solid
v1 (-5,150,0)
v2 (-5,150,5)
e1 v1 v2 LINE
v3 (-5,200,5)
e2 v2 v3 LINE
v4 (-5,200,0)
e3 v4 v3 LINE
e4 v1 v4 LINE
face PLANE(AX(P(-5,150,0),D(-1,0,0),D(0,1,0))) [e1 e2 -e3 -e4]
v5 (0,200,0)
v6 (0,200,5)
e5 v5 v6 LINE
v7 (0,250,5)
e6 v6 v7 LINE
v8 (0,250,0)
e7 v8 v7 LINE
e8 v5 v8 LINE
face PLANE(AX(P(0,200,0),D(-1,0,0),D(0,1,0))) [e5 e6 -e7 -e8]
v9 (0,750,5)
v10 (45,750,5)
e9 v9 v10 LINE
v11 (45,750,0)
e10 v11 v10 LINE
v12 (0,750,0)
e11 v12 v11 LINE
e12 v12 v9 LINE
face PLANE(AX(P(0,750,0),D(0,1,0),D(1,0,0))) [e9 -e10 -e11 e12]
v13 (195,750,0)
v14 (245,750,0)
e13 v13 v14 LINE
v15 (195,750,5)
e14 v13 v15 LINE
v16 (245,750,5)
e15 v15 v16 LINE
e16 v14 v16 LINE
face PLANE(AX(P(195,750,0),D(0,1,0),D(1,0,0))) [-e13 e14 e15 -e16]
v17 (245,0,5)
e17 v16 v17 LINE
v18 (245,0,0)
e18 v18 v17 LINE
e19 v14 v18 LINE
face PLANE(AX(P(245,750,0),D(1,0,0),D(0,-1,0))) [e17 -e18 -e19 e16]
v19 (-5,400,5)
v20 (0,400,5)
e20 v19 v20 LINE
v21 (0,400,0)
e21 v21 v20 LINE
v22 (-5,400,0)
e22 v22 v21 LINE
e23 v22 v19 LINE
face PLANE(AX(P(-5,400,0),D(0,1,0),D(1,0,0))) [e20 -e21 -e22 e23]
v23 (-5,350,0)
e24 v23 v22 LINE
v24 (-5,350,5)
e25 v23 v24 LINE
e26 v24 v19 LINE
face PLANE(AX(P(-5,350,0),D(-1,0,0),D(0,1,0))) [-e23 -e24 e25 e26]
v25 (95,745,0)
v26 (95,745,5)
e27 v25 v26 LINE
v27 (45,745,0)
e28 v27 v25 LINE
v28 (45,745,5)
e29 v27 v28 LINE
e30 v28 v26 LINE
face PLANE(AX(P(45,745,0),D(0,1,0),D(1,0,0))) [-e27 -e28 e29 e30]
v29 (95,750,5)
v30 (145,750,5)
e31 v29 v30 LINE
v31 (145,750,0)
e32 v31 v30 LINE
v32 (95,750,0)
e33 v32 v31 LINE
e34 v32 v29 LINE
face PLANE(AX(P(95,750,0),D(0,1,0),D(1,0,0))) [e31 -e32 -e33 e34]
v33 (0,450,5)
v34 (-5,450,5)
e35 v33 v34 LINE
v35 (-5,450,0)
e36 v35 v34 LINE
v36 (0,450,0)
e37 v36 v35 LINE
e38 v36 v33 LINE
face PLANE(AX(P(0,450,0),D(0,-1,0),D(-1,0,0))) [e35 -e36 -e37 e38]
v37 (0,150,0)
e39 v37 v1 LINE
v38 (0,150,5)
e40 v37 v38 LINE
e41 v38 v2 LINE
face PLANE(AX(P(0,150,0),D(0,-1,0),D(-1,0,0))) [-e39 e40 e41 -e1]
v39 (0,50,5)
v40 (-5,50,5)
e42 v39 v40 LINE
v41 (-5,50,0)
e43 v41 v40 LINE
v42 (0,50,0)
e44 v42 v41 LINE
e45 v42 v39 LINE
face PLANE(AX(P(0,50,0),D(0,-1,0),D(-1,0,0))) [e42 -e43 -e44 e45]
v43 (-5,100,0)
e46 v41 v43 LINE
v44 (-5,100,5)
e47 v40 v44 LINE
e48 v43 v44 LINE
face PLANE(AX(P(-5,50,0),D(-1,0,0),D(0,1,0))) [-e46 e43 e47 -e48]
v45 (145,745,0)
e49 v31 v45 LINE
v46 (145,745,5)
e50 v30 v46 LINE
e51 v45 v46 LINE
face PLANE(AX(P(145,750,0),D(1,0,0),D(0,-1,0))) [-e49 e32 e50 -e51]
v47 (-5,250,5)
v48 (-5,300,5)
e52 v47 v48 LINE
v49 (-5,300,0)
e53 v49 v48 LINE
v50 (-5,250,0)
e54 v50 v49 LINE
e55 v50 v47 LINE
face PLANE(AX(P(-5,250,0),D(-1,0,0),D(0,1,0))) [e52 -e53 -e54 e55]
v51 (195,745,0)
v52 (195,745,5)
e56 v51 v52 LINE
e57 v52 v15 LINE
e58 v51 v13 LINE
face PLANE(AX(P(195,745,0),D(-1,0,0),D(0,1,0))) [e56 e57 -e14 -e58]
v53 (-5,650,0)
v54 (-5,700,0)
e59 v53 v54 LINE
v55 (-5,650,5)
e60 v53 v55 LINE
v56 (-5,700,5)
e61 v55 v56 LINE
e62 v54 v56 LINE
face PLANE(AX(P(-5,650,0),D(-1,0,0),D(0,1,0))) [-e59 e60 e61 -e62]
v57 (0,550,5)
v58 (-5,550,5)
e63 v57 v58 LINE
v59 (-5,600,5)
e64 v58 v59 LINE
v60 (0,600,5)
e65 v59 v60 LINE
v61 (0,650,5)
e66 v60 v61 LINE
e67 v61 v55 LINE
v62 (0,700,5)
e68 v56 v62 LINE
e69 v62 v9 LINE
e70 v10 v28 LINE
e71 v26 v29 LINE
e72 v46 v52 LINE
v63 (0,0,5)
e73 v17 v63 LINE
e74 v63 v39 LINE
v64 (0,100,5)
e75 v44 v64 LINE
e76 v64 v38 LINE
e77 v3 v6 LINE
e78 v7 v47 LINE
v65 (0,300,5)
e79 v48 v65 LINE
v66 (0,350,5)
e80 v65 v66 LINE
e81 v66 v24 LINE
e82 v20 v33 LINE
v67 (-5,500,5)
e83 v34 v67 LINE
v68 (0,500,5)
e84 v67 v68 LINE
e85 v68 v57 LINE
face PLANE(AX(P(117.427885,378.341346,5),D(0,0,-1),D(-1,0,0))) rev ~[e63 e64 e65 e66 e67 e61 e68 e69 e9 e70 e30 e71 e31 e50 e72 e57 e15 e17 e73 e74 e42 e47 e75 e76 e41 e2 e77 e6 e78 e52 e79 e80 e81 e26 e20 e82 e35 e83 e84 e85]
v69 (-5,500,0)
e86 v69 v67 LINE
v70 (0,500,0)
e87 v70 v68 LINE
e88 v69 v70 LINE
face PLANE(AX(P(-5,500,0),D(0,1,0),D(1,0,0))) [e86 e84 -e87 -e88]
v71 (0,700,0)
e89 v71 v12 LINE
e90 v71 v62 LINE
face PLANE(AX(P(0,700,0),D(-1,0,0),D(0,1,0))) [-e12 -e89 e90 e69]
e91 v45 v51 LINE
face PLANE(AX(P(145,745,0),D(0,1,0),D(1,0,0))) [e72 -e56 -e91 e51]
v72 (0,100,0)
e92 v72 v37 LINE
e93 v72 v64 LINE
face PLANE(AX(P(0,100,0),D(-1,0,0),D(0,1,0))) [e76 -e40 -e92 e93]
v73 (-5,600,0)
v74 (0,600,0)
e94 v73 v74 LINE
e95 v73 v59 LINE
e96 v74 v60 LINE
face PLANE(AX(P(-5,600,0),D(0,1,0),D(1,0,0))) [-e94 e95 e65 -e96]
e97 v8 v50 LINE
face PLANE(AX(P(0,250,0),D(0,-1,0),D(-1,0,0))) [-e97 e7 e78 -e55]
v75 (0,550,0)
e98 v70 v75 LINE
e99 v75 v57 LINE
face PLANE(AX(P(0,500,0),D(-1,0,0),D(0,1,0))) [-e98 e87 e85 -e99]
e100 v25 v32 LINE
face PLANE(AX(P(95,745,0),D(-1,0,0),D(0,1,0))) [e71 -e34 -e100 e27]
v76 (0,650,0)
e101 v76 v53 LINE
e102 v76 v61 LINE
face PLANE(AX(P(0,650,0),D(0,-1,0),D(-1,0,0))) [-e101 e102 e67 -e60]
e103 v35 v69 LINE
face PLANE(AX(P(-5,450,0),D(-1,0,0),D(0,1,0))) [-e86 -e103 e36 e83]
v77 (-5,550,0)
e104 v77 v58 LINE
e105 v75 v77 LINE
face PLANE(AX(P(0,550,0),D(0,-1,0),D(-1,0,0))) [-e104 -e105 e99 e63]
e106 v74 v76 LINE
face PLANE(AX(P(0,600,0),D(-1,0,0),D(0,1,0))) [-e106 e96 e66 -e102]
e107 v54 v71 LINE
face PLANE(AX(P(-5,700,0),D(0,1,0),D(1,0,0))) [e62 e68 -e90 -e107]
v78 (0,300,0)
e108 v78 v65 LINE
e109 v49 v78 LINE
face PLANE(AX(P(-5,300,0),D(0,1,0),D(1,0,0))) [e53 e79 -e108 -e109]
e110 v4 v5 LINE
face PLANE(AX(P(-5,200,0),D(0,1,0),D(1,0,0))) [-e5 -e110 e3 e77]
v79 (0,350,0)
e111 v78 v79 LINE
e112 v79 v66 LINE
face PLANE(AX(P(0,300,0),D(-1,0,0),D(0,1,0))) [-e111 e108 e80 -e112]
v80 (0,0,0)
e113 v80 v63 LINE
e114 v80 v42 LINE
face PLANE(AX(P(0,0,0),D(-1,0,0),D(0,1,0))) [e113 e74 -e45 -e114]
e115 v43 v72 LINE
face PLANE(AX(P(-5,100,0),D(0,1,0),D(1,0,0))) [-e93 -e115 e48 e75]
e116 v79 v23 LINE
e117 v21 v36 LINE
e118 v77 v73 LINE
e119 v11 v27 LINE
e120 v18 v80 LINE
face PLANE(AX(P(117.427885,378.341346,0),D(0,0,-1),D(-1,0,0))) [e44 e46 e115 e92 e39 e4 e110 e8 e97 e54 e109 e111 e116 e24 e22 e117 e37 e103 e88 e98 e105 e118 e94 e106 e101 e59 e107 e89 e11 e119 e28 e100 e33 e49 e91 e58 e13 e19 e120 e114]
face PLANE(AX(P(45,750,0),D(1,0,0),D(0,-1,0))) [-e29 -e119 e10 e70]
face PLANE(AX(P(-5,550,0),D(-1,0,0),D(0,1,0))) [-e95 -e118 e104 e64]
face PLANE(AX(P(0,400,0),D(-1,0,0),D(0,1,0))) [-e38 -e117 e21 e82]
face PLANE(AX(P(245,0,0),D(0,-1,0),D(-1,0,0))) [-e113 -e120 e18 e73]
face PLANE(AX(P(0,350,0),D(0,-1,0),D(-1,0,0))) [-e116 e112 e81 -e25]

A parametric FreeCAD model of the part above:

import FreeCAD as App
import Part
import Sketcher
from FreeCAD import Vector
Q = App.Units.Quantity


def add_polygon(sketch, points):
    """Adds a closed chain of lines whose ends are joined by coincident constraints."""
    first, n = sketch.GeometryCount, len(points)
    for a, b in zip(points, points[1:] + points[:1]):
        sketch.addGeometry(Part.LineSegment(App.Vector(*a, 0), App.Vector(*b, 0)), False)
    for i in range(n):
        sketch.addConstraint(Sketcher.Constraint("Coincident", first + i, 2, first + (i + 1) % n, 1))

doc = App.newDocument("Part")
body = doc.addObject("PartDesign::Body", "Body")

sketch1 = doc.addObject("Sketcher::SketchObject", "Sketch")
body.addObject(sketch1)
sketch1.AttachmentSupport = (doc.XY_Plane, [""])
sketch1.MapMode = "FlatFace"
add_polygon(sketch1, [(0, 50), (0, 0), (245, 0), (245, 750), (195, 750), (195, 745), (145, 745), (145, 750), (95, 750), (95, 745), (45, 745), (45, 750), (0, 750), (0, 700), (-5, 700), (-5, 650), (0, 650), (0, 600), (-5, 600), (-5, 550), (0, 550), (0, 500), (-5, 500), (-5, 450), (0, 450), (0, 400), (-5, 400), (-5, 350), (0, 350), (0, 300), (-5, 300), (-5, 250), (0, 250), (0, 200), (-5, 200), (-5, 150), (0, 150), (0, 100), (-5, 100), (-5, 50)])
sketch1.addConstraint(Sketcher.Constraint("Vertical", 0))
sketch1.addConstraint(Sketcher.Constraint("Horizontal", 1))
sketch1.addConstraint(Sketcher.Constraint("Vertical", 2))
sketch1.addConstraint(Sketcher.Constraint("Horizontal", 3))
sketch1.addConstraint(Sketcher.Constraint("Vertical", 4))
sketch1.addConstraint(Sketcher.Constraint("Horizontal", 5))
sketch1.addConstraint(Sketcher.Constraint("Vertical", 6))
sketch1.addConstraint(Sketcher.Constraint("Horizontal", 7))
sketch1.addConstraint(Sketcher.Constraint("Vertical", 8))
sketch1.addConstraint(Sketcher.Constraint("Horizontal", 9))
sketch1.addConstraint(Sketcher.Constraint("Vertical", 10))
sketch1.addConstraint(Sketcher.Constraint("Horizontal", 11))
sketch1.addConstraint(Sketcher.Constraint("Vertical", 12))
sketch1.addConstraint(Sketcher.Constraint("Horizontal", 13))
sketch1.addConstraint(Sketcher.Constraint("Vertical", 14))
sketch1.addConstraint(Sketcher.Constraint("Horizontal", 15))
sketch1.addConstraint(Sketcher.Constraint("Vertical", 16))
sketch1.addConstraint(Sketcher.Constraint("Horizontal", 17))
sketch1.addConstraint(Sketcher.Constraint("Vertical", 18))
sketch1.addConstraint(Sketcher.Constraint("Horizontal", 19))
sketch1.addConstraint(Sketcher.Constraint("Vertical", 20))
sketch1.addConstraint(Sketcher.Constraint("Horizontal", 21))
sketch1.addConstraint(Sketcher.Constraint("Vertical", 22))
sketch1.addConstraint(Sketcher.Constraint("Horizontal", 23))
sketch1.addConstraint(Sketcher.Constraint("Vertical", 24))
sketch1.addConstraint(Sketcher.Constraint("Horizontal", 25))
sketch1.addConstraint(Sketcher.Constraint("Vertical", 26))
sketch1.addConstraint(Sketcher.Constraint("Horizontal", 27))
sketch1.addConstraint(Sketcher.Constraint("Vertical", 28))
sketch1.addConstraint(Sketcher.Constraint("Horizontal", 29))
sketch1.addConstraint(Sketcher.Constraint("Vertical", 30))
sketch1.addConstraint(Sketcher.Constraint("Horizontal", 31))
sketch1.addConstraint(Sketcher.Constraint("Vertical", 32))
sketch1.addConstraint(Sketcher.Constraint("Horizontal", 33))
sketch1.addConstraint(Sketcher.Constraint("Vertical", 34))
sketch1.addConstraint(Sketcher.Constraint("Horizontal", 35))
sketch1.addConstraint(Sketcher.Constraint("Vertical", 36))
sketch1.addConstraint(Sketcher.Constraint("Horizontal", 37))
sketch1.addConstraint(Sketcher.Constraint("Vertical", 38))
sketch1.addConstraint(Sketcher.Constraint("Horizontal", 39))
sketch1.addConstraint(Sketcher.Constraint("Coincident", 0, 2, -1, 1))
sketch1.addConstraint(Sketcher.Constraint("PointOnObject", 11, 2, -2))
sketch1.addConstraint(Sketcher.Constraint("PointOnObject", 15, 2, -2))
sketch1.addConstraint(Sketcher.Constraint("PointOnObject", 19, 2, -2))
sketch1.addConstraint(Sketcher.Constraint("PointOnObject", 23, 2, -2))
sketch1.addConstraint(Sketcher.Constraint("PointOnObject", 27, 2, -2))
sketch1.addConstraint(Sketcher.Constraint("PointOnObject", 31, 2, -2))
sketch1.addConstraint(Sketcher.Constraint("PointOnObject", 35, 2, -2))
sketch1.addConstraint(Sketcher.Constraint("Horizontal", 3, 2, 6, 2))
sketch1.addConstraint(Sketcher.Constraint("Horizontal", 5, 2, 8, 2))
sketch1.addConstraint(Sketcher.Constraint("Horizontal", 7, 2, 10, 2))
sketch1.addConstraint(Sketcher.Constraint("Vertical", 14, 2, 17, 2))
sketch1.addConstraint(Sketcher.Constraint("Vertical", 18, 2, 21, 2))
sketch1.addConstraint(Sketcher.Constraint("Vertical", 22, 2, 25, 2))
sketch1.addConstraint(Sketcher.Constraint("Vertical", 26, 2, 29, 2))
sketch1.addConstraint(Sketcher.Constraint("Vertical", 30, 2, 33, 2))
sketch1.addConstraint(Sketcher.Constraint("Vertical", 34, 2, 37, 2))
sketch1.addConstraint(Sketcher.Constraint("Equal", 3, 5))
sketch1.addConstraint(Sketcher.Constraint("Equal", 5, 7))
sketch1.addConstraint(Sketcher.Constraint("Equal", 7, 9))
sketch1.addConstraint(Sketcher.Constraint("Equal", 9, 0))
sketch1.addConstraint(Sketcher.Constraint("Equal", 39, 4))
sketch1.addConstraint(Sketcher.Constraint("Equal", 0, 12))
sketch1.addConstraint(Sketcher.Constraint("Equal", 12, 14))
sketch1.addConstraint(Sketcher.Constraint("Equal", 14, 16))
sketch1.addConstraint(Sketcher.Constraint("Equal", 16, 18))
sketch1.addConstraint(Sketcher.Constraint("Equal", 18, 20))
sketch1.addConstraint(Sketcher.Constraint("Equal", 20, 22))
sketch1.addConstraint(Sketcher.Constraint("Equal", 22, 24))
sketch1.addConstraint(Sketcher.Constraint("Equal", 24, 26))
sketch1.addConstraint(Sketcher.Constraint("Equal", 26, 28))
sketch1.addConstraint(Sketcher.Constraint("Equal", 28, 30))
sketch1.addConstraint(Sketcher.Constraint("Equal", 30, 32))
sketch1.addConstraint(Sketcher.Constraint("Equal", 32, 34))
sketch1.addConstraint(Sketcher.Constraint("Equal", 34, 36))
sketch1.addConstraint(Sketcher.Constraint("Equal", 36, 38))
sketch1.addConstraint(Sketcher.Constraint("DistanceX", 1, 1, 1, 2, Q("245 mm")))
sketch1.addConstraint(Sketcher.Constraint("DistanceX", 3, 2, 3, 1, Q("50 mm")))
sketch1.addConstraint(Sketcher.Constraint("DistanceX", 13, 2, 13, 1, Q("5 mm")))
pad1 = doc.addObject("PartDesign::Pad", "Pad")
body.addObject(pad1)
pad1.Profile = sketch1
pad1.Length = 5

doc.recompute()
